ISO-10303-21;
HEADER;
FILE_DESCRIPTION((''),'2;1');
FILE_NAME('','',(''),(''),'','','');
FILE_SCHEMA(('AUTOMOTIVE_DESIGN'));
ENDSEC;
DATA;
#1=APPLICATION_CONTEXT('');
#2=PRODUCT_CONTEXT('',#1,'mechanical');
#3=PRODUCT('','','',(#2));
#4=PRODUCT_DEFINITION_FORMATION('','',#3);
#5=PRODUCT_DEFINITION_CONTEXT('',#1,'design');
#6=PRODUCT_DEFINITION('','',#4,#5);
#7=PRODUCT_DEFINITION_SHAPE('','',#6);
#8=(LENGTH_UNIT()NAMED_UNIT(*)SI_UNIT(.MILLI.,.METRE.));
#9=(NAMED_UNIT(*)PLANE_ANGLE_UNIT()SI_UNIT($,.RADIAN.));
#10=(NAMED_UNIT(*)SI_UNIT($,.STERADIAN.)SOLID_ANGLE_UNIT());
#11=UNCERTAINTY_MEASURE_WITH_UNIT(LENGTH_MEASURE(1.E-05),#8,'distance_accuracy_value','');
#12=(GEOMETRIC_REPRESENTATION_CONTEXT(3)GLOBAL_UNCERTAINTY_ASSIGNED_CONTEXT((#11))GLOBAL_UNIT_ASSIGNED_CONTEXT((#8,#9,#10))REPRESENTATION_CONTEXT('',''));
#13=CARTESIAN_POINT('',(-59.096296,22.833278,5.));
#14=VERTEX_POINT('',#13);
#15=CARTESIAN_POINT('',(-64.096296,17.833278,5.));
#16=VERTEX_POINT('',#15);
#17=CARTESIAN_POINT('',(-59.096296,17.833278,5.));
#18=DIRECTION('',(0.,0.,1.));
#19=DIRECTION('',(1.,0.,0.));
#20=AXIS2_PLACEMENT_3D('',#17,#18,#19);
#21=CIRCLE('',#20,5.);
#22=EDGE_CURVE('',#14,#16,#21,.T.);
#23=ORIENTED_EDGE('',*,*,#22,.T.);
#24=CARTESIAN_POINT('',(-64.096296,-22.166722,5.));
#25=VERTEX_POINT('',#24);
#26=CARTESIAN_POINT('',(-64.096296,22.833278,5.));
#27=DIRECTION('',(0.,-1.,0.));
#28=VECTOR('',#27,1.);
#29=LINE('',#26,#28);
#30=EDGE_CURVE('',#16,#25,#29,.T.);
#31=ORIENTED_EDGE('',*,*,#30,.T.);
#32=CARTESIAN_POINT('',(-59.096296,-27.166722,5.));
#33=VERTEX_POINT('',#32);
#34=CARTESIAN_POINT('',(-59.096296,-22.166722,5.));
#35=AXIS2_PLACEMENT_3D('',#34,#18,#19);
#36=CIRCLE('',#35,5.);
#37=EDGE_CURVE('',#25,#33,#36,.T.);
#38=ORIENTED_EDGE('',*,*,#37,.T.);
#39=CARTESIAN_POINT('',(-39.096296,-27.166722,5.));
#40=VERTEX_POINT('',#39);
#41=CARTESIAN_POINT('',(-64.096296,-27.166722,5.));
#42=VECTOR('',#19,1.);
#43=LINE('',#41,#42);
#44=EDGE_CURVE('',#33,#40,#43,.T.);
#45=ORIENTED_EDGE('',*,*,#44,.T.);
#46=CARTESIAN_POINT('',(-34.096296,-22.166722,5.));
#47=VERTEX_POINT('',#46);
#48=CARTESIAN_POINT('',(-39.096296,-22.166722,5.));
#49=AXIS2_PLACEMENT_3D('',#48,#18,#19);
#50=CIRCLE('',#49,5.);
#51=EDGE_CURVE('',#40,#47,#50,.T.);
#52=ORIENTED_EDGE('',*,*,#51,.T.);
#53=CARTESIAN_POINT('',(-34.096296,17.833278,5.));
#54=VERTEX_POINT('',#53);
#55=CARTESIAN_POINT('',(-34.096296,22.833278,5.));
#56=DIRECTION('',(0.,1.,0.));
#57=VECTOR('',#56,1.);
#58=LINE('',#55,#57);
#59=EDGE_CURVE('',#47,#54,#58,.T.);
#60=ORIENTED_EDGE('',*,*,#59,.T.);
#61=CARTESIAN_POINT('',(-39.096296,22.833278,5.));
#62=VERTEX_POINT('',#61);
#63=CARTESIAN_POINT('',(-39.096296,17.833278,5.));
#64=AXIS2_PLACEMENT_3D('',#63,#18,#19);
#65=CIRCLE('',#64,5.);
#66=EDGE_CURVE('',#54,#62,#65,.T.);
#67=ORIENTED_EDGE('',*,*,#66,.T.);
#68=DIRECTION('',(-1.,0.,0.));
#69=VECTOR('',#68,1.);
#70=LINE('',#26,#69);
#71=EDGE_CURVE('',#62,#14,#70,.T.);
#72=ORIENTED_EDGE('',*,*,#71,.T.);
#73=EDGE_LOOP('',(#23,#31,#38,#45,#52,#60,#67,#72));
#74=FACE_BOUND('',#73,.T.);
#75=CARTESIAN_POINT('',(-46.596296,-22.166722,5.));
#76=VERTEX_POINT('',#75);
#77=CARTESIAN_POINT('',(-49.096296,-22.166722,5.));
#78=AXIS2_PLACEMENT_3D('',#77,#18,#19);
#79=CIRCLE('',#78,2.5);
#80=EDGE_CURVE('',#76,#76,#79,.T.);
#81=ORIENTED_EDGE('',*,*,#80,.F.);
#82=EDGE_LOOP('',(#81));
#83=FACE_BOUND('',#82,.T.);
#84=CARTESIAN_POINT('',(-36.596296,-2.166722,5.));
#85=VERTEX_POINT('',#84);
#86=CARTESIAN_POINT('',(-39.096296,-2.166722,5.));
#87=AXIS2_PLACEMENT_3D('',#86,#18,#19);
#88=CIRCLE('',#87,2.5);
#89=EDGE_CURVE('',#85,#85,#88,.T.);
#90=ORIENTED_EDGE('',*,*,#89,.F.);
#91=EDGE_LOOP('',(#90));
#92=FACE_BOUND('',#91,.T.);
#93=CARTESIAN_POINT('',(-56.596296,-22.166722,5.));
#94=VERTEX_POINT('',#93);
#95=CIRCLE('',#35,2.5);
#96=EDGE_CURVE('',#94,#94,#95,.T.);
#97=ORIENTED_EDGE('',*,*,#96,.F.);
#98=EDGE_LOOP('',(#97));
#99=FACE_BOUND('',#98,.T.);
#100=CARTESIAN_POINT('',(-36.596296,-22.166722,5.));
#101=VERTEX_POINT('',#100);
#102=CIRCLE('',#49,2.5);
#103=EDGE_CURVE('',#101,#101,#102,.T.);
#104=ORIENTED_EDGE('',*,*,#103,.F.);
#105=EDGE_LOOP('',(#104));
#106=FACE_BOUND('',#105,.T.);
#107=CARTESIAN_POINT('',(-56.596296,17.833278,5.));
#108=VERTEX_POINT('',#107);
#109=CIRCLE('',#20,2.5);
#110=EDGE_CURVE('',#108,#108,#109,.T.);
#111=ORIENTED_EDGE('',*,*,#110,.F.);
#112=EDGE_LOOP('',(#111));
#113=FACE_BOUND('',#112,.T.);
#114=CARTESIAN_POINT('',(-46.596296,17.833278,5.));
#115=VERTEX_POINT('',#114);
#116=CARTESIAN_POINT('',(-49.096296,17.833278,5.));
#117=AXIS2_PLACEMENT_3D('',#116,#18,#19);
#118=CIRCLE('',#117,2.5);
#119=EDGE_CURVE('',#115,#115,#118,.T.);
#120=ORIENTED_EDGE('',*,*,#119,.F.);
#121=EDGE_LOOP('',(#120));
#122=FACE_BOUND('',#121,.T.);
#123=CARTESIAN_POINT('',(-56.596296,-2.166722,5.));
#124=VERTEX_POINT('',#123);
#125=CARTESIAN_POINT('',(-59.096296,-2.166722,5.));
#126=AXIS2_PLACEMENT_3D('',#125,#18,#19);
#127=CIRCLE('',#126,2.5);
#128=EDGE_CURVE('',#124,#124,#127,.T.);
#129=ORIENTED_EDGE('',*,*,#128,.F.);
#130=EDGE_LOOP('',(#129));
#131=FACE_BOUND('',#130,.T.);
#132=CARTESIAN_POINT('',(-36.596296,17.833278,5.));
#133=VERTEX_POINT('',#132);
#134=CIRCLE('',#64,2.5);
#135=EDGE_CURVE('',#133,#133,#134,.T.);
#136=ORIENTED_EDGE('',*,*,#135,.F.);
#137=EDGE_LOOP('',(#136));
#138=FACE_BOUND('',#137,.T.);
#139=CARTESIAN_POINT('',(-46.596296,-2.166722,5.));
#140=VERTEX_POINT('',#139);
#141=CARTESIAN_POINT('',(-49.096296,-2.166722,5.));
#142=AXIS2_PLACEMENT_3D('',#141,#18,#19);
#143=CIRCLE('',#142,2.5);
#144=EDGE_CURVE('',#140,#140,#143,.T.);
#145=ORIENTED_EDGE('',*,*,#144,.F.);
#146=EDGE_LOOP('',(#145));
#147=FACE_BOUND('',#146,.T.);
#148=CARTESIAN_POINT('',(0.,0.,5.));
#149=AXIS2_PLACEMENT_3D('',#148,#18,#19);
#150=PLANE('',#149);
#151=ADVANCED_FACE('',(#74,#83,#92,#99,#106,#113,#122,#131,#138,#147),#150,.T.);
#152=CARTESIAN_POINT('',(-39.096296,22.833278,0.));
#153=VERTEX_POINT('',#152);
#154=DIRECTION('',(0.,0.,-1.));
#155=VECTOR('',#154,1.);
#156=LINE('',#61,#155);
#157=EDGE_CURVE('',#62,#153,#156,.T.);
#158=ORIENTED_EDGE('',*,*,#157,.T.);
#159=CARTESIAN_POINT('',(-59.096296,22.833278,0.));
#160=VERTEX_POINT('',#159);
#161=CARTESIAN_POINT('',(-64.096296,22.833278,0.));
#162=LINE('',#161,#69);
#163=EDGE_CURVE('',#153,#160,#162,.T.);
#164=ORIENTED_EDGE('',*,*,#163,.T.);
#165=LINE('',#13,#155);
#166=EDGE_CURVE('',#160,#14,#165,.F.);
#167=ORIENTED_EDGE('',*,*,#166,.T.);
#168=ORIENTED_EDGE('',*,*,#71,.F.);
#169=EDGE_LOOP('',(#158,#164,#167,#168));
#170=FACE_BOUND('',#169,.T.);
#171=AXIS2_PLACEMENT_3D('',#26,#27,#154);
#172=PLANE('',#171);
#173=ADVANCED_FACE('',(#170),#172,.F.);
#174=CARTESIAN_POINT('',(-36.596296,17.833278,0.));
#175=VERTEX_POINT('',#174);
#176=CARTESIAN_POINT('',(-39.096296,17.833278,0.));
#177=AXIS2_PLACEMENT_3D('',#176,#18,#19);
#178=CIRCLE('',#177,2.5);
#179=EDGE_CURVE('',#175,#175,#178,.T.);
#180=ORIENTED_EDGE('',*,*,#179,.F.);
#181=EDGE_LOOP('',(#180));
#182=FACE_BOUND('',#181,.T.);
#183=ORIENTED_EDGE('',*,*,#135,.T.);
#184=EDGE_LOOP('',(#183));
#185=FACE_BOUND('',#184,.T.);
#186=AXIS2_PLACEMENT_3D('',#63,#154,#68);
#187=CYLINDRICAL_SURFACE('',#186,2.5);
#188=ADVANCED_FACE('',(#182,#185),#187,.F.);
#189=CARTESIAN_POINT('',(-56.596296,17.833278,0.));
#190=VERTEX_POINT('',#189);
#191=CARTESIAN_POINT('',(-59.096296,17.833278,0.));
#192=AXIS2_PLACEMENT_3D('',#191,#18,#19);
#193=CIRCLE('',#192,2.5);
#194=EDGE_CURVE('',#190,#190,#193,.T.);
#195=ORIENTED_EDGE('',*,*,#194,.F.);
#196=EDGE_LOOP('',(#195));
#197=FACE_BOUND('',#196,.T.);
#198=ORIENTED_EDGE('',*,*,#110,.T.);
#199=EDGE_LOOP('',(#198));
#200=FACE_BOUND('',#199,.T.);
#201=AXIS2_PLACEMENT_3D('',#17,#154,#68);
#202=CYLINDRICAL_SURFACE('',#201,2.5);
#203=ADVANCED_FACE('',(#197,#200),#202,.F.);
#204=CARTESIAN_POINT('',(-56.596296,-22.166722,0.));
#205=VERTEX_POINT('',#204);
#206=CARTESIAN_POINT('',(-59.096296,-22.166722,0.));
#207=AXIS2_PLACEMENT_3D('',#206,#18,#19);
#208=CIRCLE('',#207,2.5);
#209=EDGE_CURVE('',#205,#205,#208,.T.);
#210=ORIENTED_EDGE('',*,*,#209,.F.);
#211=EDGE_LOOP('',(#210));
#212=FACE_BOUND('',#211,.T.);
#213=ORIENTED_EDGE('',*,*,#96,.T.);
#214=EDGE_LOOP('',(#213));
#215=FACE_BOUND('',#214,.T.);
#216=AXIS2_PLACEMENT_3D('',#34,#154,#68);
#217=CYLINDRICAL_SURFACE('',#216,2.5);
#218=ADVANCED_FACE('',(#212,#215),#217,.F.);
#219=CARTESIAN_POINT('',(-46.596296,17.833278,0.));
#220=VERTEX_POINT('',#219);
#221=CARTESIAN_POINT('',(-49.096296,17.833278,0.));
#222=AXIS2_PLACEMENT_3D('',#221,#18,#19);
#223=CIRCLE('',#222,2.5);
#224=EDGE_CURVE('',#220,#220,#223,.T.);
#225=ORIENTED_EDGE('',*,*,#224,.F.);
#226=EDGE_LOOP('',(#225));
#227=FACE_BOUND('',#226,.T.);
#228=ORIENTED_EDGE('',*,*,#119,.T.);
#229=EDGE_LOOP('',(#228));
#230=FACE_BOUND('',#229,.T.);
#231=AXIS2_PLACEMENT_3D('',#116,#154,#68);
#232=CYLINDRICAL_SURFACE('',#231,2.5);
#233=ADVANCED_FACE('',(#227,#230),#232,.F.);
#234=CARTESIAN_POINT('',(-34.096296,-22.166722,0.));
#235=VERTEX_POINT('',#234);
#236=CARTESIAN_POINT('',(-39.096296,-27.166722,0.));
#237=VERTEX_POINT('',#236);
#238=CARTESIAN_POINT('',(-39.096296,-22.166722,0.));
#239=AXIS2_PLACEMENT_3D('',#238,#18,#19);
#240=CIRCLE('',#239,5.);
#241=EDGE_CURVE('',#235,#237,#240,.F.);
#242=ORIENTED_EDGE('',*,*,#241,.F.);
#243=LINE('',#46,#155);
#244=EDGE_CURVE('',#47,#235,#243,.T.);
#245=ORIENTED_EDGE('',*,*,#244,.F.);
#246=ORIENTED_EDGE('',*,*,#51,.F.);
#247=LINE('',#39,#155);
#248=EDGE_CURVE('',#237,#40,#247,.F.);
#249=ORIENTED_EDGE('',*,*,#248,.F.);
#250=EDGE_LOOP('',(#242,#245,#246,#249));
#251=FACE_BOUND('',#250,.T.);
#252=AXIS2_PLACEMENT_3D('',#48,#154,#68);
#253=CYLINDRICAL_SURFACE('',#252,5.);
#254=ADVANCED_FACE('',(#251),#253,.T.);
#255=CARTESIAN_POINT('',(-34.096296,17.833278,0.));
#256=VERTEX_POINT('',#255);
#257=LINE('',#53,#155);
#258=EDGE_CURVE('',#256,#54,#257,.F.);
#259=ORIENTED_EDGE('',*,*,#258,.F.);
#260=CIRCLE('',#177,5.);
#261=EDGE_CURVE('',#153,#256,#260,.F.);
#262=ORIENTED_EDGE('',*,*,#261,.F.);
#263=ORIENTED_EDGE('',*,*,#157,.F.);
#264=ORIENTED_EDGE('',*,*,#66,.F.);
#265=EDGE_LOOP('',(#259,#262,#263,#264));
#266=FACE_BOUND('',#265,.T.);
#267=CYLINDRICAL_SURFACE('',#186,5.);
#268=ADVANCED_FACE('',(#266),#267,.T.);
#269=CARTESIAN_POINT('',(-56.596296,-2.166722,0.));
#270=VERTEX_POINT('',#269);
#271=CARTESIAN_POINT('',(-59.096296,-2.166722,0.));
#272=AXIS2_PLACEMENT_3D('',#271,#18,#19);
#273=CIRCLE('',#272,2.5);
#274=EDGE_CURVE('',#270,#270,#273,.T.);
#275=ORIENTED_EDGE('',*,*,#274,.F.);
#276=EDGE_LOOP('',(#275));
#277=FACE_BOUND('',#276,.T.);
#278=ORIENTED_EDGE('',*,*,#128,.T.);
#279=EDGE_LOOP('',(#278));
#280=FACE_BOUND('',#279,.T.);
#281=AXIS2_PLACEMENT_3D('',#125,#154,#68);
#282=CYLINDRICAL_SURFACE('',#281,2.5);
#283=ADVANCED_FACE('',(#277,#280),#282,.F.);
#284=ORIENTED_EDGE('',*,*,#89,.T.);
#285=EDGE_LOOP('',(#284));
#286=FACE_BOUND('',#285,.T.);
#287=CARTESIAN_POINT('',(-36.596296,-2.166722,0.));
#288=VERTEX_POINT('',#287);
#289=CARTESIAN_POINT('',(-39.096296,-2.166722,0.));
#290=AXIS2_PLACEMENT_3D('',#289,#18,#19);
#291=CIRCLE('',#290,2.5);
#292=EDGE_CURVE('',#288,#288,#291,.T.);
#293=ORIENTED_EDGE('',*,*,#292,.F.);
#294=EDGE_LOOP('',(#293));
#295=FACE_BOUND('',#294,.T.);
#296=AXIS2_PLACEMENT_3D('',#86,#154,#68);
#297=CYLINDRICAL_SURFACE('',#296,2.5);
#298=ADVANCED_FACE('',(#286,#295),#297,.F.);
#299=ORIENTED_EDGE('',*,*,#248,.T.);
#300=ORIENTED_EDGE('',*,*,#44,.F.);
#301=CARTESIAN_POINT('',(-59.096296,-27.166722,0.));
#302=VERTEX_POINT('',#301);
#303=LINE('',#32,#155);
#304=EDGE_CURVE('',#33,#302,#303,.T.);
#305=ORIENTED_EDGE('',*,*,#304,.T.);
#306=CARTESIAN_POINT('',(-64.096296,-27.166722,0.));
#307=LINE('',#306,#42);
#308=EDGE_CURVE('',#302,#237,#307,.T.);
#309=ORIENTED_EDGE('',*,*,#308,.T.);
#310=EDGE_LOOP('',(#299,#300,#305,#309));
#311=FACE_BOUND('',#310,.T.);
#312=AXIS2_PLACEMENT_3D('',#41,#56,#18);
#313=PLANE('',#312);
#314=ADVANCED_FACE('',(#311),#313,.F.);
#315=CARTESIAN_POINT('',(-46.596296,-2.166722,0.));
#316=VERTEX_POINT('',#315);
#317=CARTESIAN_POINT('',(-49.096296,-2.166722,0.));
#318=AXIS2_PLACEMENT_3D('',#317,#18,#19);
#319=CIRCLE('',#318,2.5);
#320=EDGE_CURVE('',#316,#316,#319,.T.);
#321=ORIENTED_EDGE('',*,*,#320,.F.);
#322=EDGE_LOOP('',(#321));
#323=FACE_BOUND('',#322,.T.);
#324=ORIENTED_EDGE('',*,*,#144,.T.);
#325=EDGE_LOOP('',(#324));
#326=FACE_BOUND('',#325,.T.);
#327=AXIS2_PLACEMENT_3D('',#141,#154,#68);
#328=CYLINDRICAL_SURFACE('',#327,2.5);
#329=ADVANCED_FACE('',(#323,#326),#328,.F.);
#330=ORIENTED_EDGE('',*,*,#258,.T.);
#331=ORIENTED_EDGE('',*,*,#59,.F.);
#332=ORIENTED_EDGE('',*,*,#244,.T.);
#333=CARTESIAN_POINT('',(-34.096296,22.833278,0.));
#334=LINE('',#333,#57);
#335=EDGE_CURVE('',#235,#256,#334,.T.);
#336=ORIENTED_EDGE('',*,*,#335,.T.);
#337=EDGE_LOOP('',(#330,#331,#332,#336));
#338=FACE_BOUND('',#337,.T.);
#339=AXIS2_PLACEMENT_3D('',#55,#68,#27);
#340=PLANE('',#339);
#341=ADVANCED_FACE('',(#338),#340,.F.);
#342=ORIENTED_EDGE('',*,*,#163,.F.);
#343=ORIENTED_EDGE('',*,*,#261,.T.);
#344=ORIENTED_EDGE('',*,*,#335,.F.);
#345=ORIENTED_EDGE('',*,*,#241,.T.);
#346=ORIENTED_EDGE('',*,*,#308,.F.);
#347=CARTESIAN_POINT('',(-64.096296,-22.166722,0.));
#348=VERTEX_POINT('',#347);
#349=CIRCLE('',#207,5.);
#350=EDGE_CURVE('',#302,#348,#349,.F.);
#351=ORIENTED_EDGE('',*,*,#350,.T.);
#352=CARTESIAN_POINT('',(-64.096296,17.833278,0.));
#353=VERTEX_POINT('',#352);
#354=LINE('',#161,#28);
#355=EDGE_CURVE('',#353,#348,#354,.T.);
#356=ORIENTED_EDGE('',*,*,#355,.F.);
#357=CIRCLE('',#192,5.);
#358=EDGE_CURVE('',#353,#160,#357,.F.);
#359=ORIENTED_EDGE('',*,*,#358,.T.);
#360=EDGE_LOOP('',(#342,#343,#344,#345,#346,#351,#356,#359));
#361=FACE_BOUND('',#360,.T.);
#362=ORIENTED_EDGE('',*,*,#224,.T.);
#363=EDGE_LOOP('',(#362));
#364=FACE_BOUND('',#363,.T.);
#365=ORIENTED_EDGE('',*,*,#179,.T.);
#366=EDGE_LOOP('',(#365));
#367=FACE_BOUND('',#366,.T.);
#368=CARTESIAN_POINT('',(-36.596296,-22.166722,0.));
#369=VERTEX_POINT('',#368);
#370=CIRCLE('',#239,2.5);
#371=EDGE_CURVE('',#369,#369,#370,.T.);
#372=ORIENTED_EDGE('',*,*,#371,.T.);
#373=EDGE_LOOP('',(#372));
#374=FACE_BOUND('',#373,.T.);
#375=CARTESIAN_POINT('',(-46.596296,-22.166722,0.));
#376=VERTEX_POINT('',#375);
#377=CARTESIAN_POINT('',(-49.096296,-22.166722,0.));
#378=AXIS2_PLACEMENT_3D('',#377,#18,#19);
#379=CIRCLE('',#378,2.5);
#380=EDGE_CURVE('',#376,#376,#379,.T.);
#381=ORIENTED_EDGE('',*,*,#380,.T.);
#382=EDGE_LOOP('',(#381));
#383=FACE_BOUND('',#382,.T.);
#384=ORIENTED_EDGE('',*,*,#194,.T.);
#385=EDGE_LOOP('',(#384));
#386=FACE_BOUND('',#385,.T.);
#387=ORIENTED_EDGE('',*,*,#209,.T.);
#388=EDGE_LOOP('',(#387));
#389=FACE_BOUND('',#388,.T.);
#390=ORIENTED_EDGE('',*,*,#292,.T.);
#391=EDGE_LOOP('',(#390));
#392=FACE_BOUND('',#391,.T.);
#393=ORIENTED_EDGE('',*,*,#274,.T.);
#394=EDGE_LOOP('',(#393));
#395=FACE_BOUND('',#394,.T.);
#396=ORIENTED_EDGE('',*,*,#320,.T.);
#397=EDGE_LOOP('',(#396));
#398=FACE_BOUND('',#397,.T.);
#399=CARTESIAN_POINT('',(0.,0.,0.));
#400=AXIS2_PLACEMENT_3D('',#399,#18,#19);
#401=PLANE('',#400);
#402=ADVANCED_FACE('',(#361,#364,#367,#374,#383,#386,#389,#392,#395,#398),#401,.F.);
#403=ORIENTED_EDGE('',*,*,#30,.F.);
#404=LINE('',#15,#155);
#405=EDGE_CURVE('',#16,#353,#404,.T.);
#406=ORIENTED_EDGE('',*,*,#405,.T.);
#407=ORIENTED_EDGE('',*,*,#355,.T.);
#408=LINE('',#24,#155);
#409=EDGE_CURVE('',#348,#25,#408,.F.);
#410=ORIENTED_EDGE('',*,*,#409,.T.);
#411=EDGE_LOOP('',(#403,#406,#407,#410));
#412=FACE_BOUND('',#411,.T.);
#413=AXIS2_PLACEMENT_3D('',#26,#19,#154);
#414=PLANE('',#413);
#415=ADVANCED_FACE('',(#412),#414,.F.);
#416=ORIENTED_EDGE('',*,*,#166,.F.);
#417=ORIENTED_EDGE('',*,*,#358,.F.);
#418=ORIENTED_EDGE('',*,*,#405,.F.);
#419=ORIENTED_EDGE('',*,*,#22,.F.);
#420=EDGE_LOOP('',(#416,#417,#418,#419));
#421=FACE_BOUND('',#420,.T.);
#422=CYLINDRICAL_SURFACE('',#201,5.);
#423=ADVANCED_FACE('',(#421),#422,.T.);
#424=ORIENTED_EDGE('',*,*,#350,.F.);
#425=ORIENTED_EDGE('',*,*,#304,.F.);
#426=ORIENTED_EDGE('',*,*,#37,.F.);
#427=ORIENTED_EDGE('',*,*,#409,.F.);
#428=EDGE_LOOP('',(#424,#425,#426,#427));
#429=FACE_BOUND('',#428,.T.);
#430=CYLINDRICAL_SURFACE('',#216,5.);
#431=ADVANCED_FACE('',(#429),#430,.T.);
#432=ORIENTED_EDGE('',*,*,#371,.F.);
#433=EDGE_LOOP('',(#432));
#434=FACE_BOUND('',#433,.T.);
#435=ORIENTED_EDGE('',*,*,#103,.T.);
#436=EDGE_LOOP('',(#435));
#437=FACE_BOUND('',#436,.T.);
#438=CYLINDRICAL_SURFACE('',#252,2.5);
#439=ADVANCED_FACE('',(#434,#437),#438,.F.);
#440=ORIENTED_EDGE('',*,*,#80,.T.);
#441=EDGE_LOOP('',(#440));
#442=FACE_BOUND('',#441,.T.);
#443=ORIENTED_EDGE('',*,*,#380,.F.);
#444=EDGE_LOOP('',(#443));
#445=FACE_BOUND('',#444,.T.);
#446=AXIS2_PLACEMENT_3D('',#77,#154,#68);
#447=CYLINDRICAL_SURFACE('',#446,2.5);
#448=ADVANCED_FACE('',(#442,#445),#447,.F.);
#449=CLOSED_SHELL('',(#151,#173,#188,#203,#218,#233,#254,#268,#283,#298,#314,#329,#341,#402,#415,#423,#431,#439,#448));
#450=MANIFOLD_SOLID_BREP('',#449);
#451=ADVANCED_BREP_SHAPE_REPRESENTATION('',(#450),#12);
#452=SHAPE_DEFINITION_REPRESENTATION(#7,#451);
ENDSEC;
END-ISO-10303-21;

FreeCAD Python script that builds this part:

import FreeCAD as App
import Part
import Sketcher


def edges_at(feature, points):
    """Names of the edges that pass closest to the given points."""
    edges = feature.Shape.Edges
    near = lambda p: min(range(len(edges)), key=lambda i: edges[i].distToShape(Part.Vertex(*p))[0])
    return sorted({f"Edge{near(p) + 1}" for p in points})


def add_polygon(sketch, points):
    """Adds a closed chain of lines whose ends are joined by coincident constraints."""
    first, n = sketch.GeometryCount, len(points)
    for a, b in zip(points, points[1:] + points[:1]):
        sketch.addGeometry(Part.LineSegment(App.Vector(*a, 0), App.Vector(*b, 0)), False)
    for i in range(n):
        sketch.addConstraint(Sketcher.Constraint("Coincident", first + i, 2, first + (i + 1) % n, 1))

doc = App.newDocument("Part")
body = doc.addObject("PartDesign::Body", "Body")

sketch1 = body.newObject("Sketcher::SketchObject", "Sketch")
sketch1.AttachmentSupport = (doc.getObject("XY_Plane"), [""])
sketch1.MapMode = "FlatFace"
add_polygon(sketch1, [(-64.1, 22.8), (-64.1, -27.2), (-34.1, -27.2), (-34.1, 22.8)])
sketch1.addGeometry(Part.Circle(App.Vector(-59.1, -22.2, 0), App.Vector(0, 0, 1), 2.5), False)
sketch1.addGeometry(Part.Circle(App.Vector(-49.1, -22.2, 0), App.Vector(0, 0, 1), 2.5), False)
sketch1.addGeometry(Part.Circle(App.Vector(-39.1, -22.2, 0), App.Vector(0, 0, 1), 2.5), False)
sketch1.addGeometry(Part.Circle(App.Vector(-59.1, -2.2, 0), App.Vector(0, 0, 1), 2.5), False)
sketch1.addGeometry(Part.Circle(App.Vector(-59.1, 17.8, 0), App.Vector(0, 0, 1), 2.5), False)
sketch1.addGeometry(Part.Circle(App.Vector(-49.1, -2.2, 0), App.Vector(0, 0, 1), 2.5), False)
sketch1.addGeometry(Part.Circle(App.Vector(-39.1, -2.2, 0), App.Vector(0, 0, 1), 2.5), False)
sketch1.addGeometry(Part.Circle(App.Vector(-49.1, 17.8, 0), App.Vector(0, 0, 1), 2.5), False)
sketch1.addGeometry(Part.Circle(App.Vector(-39.1, 17.8, 0), App.Vector(0, 0, 1), 2.5), False)
sketch1.addConstraint([
    Sketcher.Constraint("Vertical", 0),
    Sketcher.Constraint("Horizontal", 1),
    Sketcher.Constraint("Vertical", 2),
    Sketcher.Constraint("Horizontal", 3),
    Sketcher.Constraint("Equal", 4, 5),
    Sketcher.Constraint("Equal", 5, 6),
    Sketcher.Constraint("Equal", 6, 7),
    Sketcher.Constraint("Equal", 7, 8),
    Sketcher.Constraint("Equal", 8, 9),
    Sketcher.Constraint("Equal", 9, 10),
    Sketcher.Constraint("Equal", 10, 11),
    Sketcher.Constraint("Equal", 11, 12),
    Sketcher.Constraint("Horizontal", 4, 3, 5, 3),
    Sketcher.Constraint("Horizontal", 5, 3, 6, 3),
    Sketcher.Constraint("Horizontal", 7, 3, 9, 3),
    Sketcher.Constraint("Horizontal", 9, 3, 10, 3),
    Sketcher.Constraint("Horizontal", 8, 3, 11, 3),
    Sketcher.Constraint("Horizontal", 11, 3, 12, 3),
    Sketcher.Constraint("Vertical", 4, 3, 7, 3),
    Sketcher.Constraint("Vertical", 7, 3, 8, 3),
    Sketcher.Constraint("Vertical", 5, 3, 9, 3),
    Sketcher.Constraint("Vertical", 6, 3, 10, 3),
    Sketcher.Constraint("Vertical", 9, 3, 11, 3),
    Sketcher.Constraint("Vertical", 10, 3, 12, 3),
    Sketcher.Constraint("Diameter", 4, 5.0),
    Sketcher.Constraint("DistanceX", 1, 1, 1, 2, 30.0),
    Sketcher.Constraint("DistanceY", 0, 2, 0, 1, 50.0),
    Sketcher.Constraint("DistanceX", 4, 3, 5, 3, 10.0),
    Sketcher.Constraint("DistanceX", 5, 3, 6, 3, 10.0),
    Sketcher.Constraint("DistanceY", 4, 3, 7, 3, 20.0),
    Sketcher.Constraint("DistanceY", 7, 3, 8, 3, 20.0),
    Sketcher.Constraint("DistanceX", 0, 2, 4, 3, 5.0),
    Sketcher.Constraint("DistanceY", 0, 2, 4, 3, 5.0),
    Sketcher.Constraint("DistanceX", 4, 3, -1, 1, 59.096296),
    Sketcher.Constraint("DistanceY", 4, 3, -1, 1, 22.166722),
])
pad1 = body.newObject("PartDesign::Pad", "Pad")
pad1.Profile = sketch1
pad1.Length = 5
doc.recompute()

fillet = body.newObject("PartDesign::Fillet", "Fillet")
fillet.Base = (pad1, edges_at(pad1, [
    (-64.096, 22.833, 2.5),
    (-34.096, 22.833, 2.5),
    (-34.096, -27.167, 2.5),
    (-64.096, -27.167, 2.5),
]))
fillet.Radius = 5

doc.recompute()
